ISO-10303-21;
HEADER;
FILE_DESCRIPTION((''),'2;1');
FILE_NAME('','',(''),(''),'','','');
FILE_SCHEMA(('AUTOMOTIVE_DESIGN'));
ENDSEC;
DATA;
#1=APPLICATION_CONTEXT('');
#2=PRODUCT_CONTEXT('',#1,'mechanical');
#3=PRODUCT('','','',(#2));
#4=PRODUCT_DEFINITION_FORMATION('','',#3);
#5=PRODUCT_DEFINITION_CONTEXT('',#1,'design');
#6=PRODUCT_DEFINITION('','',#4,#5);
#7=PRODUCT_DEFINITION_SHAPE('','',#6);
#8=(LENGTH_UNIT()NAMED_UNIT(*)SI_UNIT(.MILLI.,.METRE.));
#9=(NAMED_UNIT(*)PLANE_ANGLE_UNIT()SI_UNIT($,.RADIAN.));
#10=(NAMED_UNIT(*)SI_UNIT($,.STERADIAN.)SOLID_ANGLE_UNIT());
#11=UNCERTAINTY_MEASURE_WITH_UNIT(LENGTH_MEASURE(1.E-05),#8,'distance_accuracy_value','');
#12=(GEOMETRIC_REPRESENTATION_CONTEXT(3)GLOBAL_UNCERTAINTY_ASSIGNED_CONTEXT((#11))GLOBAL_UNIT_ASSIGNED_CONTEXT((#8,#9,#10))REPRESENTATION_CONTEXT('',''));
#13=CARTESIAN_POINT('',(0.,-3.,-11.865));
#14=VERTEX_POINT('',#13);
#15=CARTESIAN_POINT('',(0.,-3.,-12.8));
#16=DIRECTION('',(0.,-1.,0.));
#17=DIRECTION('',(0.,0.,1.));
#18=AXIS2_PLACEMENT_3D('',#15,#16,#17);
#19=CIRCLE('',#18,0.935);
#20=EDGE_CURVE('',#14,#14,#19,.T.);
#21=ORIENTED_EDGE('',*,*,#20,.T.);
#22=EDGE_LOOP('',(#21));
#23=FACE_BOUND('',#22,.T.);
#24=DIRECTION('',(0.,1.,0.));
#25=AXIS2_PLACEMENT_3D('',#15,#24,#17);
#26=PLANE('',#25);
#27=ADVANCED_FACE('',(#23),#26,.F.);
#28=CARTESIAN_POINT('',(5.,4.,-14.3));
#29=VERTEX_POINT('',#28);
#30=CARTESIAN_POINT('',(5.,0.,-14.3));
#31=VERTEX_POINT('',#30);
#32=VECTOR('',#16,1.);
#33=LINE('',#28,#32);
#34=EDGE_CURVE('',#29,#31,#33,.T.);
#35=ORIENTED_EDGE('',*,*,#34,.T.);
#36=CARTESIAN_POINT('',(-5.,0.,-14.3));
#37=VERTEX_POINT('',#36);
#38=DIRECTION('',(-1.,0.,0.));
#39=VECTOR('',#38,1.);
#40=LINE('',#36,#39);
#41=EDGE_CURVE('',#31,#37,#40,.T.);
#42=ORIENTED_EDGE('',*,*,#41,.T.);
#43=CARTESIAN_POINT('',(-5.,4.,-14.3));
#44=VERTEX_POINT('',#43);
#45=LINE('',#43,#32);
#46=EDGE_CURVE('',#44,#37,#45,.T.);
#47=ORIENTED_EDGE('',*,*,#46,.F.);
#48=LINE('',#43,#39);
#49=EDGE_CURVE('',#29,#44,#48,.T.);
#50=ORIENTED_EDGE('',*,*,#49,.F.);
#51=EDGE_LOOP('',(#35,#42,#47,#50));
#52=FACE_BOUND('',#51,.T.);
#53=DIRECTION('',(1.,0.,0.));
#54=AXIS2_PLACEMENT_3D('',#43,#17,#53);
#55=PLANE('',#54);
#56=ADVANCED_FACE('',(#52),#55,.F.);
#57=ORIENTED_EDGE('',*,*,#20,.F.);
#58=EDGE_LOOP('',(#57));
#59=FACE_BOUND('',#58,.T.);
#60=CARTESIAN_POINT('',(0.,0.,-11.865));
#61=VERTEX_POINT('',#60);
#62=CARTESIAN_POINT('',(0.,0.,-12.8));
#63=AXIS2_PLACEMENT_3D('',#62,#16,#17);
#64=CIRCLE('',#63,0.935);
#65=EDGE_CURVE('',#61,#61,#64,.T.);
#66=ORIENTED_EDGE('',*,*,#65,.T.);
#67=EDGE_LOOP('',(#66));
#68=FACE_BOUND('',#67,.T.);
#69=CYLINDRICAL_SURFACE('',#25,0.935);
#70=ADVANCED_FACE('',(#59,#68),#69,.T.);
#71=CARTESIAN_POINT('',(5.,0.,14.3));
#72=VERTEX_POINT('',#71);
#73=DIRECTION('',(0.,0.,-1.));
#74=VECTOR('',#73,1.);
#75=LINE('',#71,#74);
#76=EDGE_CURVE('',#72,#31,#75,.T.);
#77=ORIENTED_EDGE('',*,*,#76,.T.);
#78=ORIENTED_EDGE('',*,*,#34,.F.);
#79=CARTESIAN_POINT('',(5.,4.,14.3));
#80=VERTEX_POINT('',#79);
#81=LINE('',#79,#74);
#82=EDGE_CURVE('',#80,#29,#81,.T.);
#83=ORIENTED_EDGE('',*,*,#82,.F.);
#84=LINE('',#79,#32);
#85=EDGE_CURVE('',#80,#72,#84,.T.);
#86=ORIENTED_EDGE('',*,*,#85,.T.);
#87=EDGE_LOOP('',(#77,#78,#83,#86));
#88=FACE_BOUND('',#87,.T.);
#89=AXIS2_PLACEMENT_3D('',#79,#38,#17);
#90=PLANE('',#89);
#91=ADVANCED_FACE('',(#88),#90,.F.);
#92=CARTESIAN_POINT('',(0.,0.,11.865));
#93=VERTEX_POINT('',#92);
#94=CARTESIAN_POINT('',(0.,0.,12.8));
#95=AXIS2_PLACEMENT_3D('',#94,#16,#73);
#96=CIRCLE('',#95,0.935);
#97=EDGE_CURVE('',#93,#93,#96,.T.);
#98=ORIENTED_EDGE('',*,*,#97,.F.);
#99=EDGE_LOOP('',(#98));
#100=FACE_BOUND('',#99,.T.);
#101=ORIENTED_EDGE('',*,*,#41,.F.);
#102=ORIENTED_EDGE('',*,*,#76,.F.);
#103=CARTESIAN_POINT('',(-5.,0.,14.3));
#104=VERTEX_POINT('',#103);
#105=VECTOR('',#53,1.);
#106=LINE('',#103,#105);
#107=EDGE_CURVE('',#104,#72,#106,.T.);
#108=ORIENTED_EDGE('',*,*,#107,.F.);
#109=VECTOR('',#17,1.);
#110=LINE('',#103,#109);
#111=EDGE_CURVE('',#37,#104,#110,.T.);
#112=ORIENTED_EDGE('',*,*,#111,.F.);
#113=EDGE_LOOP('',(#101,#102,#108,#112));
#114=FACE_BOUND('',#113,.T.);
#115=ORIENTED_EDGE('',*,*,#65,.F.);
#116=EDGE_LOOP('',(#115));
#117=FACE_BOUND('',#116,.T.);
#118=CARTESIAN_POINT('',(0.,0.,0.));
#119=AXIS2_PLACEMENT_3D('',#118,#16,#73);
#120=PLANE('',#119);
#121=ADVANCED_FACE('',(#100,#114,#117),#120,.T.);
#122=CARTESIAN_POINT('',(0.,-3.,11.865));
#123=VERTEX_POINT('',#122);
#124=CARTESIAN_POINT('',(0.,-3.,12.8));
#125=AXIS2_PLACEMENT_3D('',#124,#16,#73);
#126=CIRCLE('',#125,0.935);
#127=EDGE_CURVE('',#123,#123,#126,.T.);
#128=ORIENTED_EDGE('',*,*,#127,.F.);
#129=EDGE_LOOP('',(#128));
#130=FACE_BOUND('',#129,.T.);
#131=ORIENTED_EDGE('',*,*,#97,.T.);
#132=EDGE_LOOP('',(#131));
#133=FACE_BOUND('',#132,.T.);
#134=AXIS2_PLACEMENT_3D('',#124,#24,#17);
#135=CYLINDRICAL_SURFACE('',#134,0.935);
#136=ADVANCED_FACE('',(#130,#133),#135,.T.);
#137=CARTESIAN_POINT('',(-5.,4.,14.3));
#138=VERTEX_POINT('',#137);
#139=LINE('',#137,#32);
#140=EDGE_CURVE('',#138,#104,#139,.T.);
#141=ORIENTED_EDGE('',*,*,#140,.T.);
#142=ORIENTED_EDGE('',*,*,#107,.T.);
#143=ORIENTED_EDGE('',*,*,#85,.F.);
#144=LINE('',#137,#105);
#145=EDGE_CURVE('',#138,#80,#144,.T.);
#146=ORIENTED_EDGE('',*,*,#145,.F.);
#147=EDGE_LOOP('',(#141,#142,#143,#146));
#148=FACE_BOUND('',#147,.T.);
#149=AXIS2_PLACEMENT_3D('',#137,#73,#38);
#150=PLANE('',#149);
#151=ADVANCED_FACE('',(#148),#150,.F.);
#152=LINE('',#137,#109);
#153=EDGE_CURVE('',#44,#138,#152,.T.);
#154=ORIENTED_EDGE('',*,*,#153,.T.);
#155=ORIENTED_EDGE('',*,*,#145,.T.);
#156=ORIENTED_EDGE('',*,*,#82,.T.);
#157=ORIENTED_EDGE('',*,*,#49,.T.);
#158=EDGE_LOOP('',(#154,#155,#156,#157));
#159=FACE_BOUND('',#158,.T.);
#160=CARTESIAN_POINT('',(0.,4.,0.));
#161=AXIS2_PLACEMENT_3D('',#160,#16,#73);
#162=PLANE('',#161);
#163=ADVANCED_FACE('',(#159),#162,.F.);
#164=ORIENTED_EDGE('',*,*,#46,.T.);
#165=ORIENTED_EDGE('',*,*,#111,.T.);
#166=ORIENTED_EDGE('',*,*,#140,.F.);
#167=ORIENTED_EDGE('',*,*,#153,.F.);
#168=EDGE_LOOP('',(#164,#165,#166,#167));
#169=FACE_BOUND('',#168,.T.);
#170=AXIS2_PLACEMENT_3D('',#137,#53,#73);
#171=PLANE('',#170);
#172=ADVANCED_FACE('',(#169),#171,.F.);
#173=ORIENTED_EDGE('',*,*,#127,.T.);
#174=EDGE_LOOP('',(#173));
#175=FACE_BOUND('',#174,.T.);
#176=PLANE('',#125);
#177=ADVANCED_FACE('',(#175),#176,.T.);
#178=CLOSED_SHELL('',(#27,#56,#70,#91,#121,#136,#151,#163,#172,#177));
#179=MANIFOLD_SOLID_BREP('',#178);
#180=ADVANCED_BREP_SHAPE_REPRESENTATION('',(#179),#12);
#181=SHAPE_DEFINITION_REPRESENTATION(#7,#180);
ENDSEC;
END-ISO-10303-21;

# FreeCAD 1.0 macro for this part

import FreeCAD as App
import Part
import Sketcher
Q = App.Units.Quantity

doc = App.newDocument("Part")
body = doc.addObject("PartDesign::Body", "Body")

sketch1 = doc.addObject("Sketcher::SketchObject", "Sketch")
body.addObject(sketch1)
sketch1.AttachmentSupport = (doc.XZ_Plane, [""])
sketch1.MapMode = "FlatFace"
sketch1.addGeometry([
    Part.LineSegment(App.Vector(-5, -14.3, 0), App.Vector(-5, 14.3, 0)),
    Part.LineSegment(App.Vector(-5, 14.3, 0), App.Vector(5, 14.3, 0)),
    Part.LineSegment(App.Vector(5, 14.3, 0), App.Vector(5, -14.3, 0)),
    Part.LineSegment(App.Vector(5, -14.3, 0), App.Vector(-5, -14.3, 0)),
], False)
sketch1.addConstraint([
    Sketcher.Constraint("Coincident", 0, 2, 1, 1),
    Sketcher.Constraint("Coincident", 1, 2, 2, 1),
    Sketcher.Constraint("Coincident", 2, 2, 3, 1),
    Sketcher.Constraint("Coincident", 3, 2, 0, 1),
    Sketcher.Constraint("Vertical", 0),
    Sketcher.Constraint("Horizontal", 1),
    Sketcher.Constraint("Vertical", 2),
    Sketcher.Constraint("Horizontal", 3),
    Sketcher.Constraint("Symmetric", 0, 2, 2, 2, -1, 1),
    Sketcher.Constraint("DistanceX", 1, 1, 1, 2, Q("10 mm")),
    Sketcher.Constraint("DistanceY", 0, 1, 0, 2, Q("28.6 mm")),
])
pad1 = doc.addObject("PartDesign::Pad", "Pad")
body.addObject(pad1)
pad1.Profile = sketch1
pad1.Length = 4
pad1.Reversed = True

sketch2 = doc.addObject("Sketcher::SketchObject", "Sketch001")
body.addObject(sketch2)
sketch2.AttachmentSupport = (doc.XZ_Plane, [""])
sketch2.MapMode = "FlatFace"
sketch2.addGeometry([
    Part.Circle(App.Vector(0, 12.8, 0), App.Vector(0, 0, 1), 0.935),
    Part.Circle(App.Vector(0, -12.8, 0), App.Vector(0, 0, 1), 0.935),
], False)
sketch2.addConstraint([
    Sketcher.Constraint("Equal", 0, 1),
    Sketcher.Constraint("Symmetric", 0, 3, 1, 3, -1, 1),
    Sketcher.Constraint("PointOnObject", 0, 3, -2),
    Sketcher.Constraint("Diameter", 0, Q("1.87 mm")),
    Sketcher.Constraint("DistanceY", -1, 1, 0, 3, Q("12.8 mm")),
])
pad2 = doc.addObject("PartDesign::Pad", "Pad001")
body.addObject(pad2)
pad2.Profile = sketch2
pad2.Length = 3

doc.recompute()
